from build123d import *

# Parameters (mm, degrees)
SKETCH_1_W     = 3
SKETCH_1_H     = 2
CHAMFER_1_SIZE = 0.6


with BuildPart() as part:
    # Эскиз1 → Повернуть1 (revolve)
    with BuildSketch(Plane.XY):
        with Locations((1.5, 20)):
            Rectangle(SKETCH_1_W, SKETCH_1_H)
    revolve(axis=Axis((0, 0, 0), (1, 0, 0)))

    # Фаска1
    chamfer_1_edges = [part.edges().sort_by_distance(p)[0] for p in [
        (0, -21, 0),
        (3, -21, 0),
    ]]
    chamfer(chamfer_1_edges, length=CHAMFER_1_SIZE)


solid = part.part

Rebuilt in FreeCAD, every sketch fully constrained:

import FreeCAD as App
import Part
import Sketcher
from FreeCAD import Vector


def edges_at(feature, points):
    """Names of the edges that pass closest to the given points."""
    edges = feature.Shape.Edges
    near = lambda p: min(range(len(edges)), key=lambda i: edges[i].distToShape(Part.Vertex(*p))[0])
    return sorted({f"Edge{near(p) + 1}" for p in points})


def add_polygon(sketch, points):
    """Adds a closed chain of lines whose ends are joined by coincident constraints."""
    first, n = sketch.GeometryCount, len(points)
    for a, b in zip(points, points[1:] + points[:1]):
        sketch.addGeometry(Part.LineSegment(App.Vector(*a, 0), App.Vector(*b, 0)), False)
    for i in range(n):
        sketch.addConstraint(Sketcher.Constraint("Coincident", first + i, 2, first + (i + 1) % n, 1))

doc = App.newDocument("Part")
body = doc.addObject("PartDesign::Body", "Body")

# Sketch on XY plane
sketch1 = doc.addObject("Sketcher::SketchObject", "Sketch")
body.addObject(sketch1)
sketch1.AttachmentSupport = (doc.XY_Plane, [""])
sketch1.MapMode = "FlatFace"
add_polygon(sketch1, [(0, 21), (0, 19), (3, 19), (3, 21)])  # lines 0-3
sketch1.addConstraint([
    Sketcher.Constraint("Vertical", 0),
    Sketcher.Constraint("Horizontal", 1),
    Sketcher.Constraint("Vertical", 2),
    Sketcher.Constraint("Horizontal", 3),
    Sketcher.Constraint("PointOnObject", 0, 2, -2),
    Sketcher.Constraint("DistanceX", 1, 1, 1, 2, 3.0),
    Sketcher.Constraint("DistanceY", 0, 2, 0, 1, 2.0),
    Sketcher.Constraint("DistanceY", -1, 1, 0, 2, 19.0),
])
revolution = doc.addObject("PartDesign::Revolution", "Revolution")
body.addObject(revolution)
revolution.Profile = sketch1
revolution.ReferenceAxis = (sketch1, ["H_Axis"])
revolution.Angle = 360
doc.recompute()

chamfer = doc.addObject("PartDesign::Chamfer", "Chamfer")
body.addObject(chamfer)
chamfer.Base = (revolution, edges_at(revolution, [(0, -21, 0), (3, -21, 0)]))
chamfer.Size = 0.6

doc.recompute()
